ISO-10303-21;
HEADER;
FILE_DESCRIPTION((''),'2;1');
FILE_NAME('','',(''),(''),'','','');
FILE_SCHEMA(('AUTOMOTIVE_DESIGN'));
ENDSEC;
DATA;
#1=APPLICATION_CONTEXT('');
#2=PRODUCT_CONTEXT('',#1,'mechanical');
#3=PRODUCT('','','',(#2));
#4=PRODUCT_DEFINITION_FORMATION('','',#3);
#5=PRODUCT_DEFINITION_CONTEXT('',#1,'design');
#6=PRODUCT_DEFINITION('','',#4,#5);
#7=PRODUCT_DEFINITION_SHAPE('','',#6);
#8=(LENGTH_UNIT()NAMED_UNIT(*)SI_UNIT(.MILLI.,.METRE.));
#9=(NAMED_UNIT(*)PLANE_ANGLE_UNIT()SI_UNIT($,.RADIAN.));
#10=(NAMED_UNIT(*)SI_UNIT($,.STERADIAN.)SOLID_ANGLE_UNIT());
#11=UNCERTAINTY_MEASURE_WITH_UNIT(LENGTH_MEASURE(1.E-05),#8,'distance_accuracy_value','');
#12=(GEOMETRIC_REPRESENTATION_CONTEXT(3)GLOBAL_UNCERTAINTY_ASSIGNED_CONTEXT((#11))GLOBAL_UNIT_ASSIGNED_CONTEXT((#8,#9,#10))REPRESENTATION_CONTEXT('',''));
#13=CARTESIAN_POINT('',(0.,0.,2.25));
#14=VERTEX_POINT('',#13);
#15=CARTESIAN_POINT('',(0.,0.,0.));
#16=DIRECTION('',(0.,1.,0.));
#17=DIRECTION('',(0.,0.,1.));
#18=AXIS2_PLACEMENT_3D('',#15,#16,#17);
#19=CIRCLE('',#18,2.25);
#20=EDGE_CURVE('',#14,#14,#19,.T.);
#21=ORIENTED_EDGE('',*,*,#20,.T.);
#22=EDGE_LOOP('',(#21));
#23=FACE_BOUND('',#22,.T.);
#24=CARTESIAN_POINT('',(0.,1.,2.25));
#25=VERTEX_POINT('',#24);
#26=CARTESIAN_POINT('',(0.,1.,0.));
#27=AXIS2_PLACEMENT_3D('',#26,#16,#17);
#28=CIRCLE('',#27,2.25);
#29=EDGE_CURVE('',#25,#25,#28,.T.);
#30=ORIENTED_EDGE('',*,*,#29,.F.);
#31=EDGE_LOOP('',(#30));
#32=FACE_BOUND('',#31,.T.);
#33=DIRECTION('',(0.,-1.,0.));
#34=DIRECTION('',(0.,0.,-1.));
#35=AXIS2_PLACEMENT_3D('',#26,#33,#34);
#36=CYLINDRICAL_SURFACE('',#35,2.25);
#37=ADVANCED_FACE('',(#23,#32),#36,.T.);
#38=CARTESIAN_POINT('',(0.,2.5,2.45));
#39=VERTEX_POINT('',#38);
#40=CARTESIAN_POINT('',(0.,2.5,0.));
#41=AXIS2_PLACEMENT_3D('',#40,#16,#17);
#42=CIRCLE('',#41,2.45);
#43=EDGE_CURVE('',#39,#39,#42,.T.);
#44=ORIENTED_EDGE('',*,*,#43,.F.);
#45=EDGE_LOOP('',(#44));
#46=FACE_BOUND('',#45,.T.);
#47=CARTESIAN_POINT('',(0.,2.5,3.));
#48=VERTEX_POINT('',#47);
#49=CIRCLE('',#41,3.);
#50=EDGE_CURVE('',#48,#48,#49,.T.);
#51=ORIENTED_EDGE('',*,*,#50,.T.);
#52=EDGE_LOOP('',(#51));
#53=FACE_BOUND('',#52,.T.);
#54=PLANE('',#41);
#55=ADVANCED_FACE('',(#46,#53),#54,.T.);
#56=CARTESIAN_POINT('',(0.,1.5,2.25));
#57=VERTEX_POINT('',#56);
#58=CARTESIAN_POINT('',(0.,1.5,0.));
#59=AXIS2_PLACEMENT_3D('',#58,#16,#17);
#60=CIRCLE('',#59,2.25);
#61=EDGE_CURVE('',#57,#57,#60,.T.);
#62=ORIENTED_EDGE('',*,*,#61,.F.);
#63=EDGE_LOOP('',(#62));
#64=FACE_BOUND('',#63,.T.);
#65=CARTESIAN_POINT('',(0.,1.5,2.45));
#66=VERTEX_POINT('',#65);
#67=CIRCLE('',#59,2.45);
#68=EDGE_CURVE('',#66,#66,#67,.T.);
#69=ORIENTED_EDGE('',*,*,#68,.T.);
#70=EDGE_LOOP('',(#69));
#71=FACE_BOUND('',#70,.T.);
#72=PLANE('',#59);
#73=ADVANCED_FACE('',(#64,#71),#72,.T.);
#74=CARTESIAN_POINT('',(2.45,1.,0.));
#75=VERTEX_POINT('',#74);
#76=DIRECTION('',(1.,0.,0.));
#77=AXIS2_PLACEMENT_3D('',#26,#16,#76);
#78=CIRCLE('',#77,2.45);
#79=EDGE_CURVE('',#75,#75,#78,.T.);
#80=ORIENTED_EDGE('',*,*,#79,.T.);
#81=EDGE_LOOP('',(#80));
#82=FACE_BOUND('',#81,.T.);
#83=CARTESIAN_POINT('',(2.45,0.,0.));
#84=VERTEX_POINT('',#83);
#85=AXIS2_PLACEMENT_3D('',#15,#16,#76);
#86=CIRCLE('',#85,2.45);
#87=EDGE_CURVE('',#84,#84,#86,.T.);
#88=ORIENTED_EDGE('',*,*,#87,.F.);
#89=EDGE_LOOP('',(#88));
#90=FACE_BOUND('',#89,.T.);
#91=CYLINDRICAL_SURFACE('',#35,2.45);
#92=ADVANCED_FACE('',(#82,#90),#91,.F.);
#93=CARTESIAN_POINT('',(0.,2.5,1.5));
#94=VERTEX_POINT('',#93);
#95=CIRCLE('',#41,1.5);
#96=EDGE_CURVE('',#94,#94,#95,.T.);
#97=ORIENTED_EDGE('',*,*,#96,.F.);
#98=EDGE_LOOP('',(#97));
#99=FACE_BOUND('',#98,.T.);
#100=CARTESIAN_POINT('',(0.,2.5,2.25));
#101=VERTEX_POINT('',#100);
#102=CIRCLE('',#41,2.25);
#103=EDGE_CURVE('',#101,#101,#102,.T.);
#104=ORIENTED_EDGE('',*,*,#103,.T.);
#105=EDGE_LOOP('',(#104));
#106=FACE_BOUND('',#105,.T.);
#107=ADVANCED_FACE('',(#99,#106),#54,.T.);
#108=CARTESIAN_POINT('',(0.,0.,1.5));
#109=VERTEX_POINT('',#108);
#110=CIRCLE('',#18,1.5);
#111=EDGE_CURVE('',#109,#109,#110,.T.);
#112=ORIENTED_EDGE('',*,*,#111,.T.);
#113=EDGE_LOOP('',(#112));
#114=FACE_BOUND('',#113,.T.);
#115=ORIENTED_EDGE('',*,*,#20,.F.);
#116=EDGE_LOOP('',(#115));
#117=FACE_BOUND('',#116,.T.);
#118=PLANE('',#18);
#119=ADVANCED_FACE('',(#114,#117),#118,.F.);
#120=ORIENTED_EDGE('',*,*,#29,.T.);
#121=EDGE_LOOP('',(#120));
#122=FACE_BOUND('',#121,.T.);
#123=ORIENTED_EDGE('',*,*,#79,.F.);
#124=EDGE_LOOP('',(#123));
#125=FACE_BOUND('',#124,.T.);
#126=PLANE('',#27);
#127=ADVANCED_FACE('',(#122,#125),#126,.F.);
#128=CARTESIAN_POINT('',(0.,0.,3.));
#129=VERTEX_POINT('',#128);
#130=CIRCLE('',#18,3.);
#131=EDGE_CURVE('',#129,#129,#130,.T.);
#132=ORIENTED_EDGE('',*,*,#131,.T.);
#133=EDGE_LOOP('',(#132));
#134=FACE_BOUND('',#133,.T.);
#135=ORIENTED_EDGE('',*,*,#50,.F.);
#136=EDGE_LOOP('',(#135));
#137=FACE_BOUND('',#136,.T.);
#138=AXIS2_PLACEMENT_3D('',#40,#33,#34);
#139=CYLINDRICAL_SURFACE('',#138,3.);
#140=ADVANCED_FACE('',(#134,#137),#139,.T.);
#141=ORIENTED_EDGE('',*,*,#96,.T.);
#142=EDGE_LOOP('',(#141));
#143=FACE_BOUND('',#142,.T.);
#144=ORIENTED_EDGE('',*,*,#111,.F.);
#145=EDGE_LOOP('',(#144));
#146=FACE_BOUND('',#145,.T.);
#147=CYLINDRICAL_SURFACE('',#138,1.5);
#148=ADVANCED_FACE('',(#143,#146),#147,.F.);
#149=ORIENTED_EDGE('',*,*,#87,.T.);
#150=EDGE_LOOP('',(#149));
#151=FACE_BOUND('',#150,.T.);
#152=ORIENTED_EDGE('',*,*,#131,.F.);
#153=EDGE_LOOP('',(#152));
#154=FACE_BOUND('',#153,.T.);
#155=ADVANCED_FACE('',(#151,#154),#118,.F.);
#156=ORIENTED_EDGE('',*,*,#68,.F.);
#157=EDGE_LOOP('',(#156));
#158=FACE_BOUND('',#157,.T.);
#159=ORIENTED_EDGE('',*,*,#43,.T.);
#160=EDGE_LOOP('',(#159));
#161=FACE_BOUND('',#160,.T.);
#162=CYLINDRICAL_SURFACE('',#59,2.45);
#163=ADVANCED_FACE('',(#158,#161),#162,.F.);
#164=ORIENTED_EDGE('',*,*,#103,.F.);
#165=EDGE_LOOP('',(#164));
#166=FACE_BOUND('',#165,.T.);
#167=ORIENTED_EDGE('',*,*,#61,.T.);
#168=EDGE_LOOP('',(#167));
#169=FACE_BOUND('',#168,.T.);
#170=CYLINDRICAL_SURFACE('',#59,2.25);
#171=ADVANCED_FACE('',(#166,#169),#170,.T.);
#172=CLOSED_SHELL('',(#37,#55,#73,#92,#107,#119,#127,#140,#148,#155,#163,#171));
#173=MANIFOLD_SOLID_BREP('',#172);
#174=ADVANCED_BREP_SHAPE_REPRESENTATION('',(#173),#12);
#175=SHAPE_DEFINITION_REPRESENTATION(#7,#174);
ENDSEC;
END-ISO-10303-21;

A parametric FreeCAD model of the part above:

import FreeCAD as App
import Part
import Sketcher

V = App.Vector

doc = App.newDocument("Part")
body = doc.addObject("PartDesign::Body", "Body")

sketch1 = body.newObject("Sketcher::SketchObject", "Sketch")
sketch1.AttachmentSupport = (doc.getObject("XZ_Plane"), [""])
sketch1.MapMode = "FlatFace"
sketch1.addGeometry(Part.Circle(V(0, 0, 0), V(0, 0, 1), 3), False)
sketch1.addGeometry(Part.Circle(V(0, 0, 0), V(0, 0, 1), 1.5), False)
sketch1.addConstraint(Sketcher.Constraint("Coincident", 0, 3, -1, 1))
sketch1.addConstraint(Sketcher.Constraint("Coincident", 1, 3, -1, 1))
sketch1.addConstraint(Sketcher.Constraint("Diameter", 0, 6.0))
sketch1.addConstraint(Sketcher.Constraint("Diameter", 1, 3.0))
pad1 = body.newObject("PartDesign::Pad", "Pad")
pad1.Profile = sketch1
pad1.Length = 2.5
pad1.Reversed = True

sketch2 = body.newObject("Sketcher::SketchObject", "Sketch001")
sketch2.AttachmentSupport = (doc.getObject("XZ_Plane"), [""])
sketch2.MapMode = "FlatFace"
sketch2.addGeometry(Part.Circle(V(0, 0, 0), V(0, 0, 1), 2.5), False)
sketch2.addGeometry(Part.Circle(V(0, 0, 0), V(0, 0, 1), 2.2), False)
sketch2.addConstraint(Sketcher.Constraint("Coincident", 0, 3, -1, 1))
sketch2.addConstraint(Sketcher.Constraint("Coincident", 1, 3, -1, 1))
sketch2.addConstraint(Sketcher.Constraint("Diameter", 0, 4.9))
sketch2.addConstraint(Sketcher.Constraint("Diameter", 1, 4.5))
pocket1 = body.newObject("PartDesign::Pocket", "Pocket")
pocket1.Profile = sketch2
pocket1.Length = 1

sketch3 = body.newObject("Sketcher::SketchObject", "Sketch002")
sketch3.AttachmentSupport = (doc.getObject("XZ_Plane"), [""])
sketch3.MapMode = "FlatFace"
sketch3.AttachmentOffset = App.Placement(V(0, 0, -1.5), App.Rotation())
sketch3.addGeometry(Part.Circle(V(0, 0, 0), V(0, 0, 1), 2.5), False)
sketch3.addGeometry(Part.Circle(V(0, 0, 0), V(0, 0, 1), 2.2), False)
sketch3.addConstraint(Sketcher.Constraint("Coincident", 0, 3, -1, 1))
sketch3.addConstraint(Sketcher.Constraint("Coincident", 1, 3, -1, 1))
sketch3.addConstraint(Sketcher.Constraint("Diameter", 0, 4.9))
sketch3.addConstraint(Sketcher.Constraint("Diameter", 1, 4.5))
pocket2 = body.newObject("PartDesign::Pocket", "Pocket001")
pocket2.Profile = sketch3
pocket2.Length = 1

doc.recompute()
